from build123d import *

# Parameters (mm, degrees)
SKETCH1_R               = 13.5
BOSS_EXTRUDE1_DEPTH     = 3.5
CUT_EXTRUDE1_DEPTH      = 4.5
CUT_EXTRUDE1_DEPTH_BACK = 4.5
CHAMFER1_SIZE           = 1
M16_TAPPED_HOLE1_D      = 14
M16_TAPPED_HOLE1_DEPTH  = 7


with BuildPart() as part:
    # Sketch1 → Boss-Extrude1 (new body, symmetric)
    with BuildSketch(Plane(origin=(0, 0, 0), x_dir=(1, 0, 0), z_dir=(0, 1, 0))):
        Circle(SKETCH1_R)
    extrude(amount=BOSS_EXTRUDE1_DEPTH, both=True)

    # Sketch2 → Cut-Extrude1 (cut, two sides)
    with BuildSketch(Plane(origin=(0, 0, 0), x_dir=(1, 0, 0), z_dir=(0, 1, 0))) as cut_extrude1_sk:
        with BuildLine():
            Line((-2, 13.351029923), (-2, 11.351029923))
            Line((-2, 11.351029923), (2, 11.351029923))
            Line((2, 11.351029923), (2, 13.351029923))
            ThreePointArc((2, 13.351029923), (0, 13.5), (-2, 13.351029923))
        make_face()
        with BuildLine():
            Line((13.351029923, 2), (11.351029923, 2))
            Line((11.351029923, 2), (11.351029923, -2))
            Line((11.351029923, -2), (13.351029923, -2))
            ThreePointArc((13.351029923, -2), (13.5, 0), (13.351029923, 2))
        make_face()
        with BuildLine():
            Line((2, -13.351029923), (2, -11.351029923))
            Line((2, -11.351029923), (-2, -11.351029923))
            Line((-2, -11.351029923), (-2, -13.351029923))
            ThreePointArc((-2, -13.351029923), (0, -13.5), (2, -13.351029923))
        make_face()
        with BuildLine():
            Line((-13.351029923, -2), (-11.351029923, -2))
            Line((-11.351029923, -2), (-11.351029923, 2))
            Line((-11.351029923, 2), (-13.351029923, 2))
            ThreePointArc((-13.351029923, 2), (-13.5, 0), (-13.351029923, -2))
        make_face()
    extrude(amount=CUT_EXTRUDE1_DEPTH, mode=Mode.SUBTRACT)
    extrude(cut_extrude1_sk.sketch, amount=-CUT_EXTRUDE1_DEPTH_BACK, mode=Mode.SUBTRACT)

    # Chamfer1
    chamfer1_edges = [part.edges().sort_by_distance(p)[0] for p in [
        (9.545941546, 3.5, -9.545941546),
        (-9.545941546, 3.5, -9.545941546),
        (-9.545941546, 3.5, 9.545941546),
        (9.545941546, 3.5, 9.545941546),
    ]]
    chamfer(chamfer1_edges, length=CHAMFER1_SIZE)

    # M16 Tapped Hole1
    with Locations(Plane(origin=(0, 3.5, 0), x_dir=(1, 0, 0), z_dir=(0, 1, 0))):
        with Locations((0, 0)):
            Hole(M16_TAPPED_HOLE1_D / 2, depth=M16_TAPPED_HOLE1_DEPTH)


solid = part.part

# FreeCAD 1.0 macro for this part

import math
import FreeCAD as App
import Part
import Sketcher
from FreeCAD import Vector


def edges_at(feature, points):
    """Names of the edges that pass closest to the given points."""
    edges = feature.Shape.Edges
    near = lambda p: min(range(len(edges)), key=lambda i: edges[i].distToShape(Part.Vertex(*p))[0])
    return sorted({f"Edge{near(p) + 1}" for p in points})

doc = App.newDocument("Part")
body = doc.addObject("PartDesign::Body", "Body")

sketch1 = body.newObject("Sketcher::SketchObject", "Sketch")
sketch1.AttachmentSupport = (doc.getObject("XZ_Plane"), [""])
sketch1.MapMode = "FlatFace"
sketch1.addGeometry(Part.Circle(Vector(0, 0, 0), Vector(0, 0, 1), 13.5), False)
sketch1.addConstraint([
    Sketcher.Constraint("Coincident", 0, 3, -1, 1),
    Sketcher.Constraint("Diameter", 0, 27.0),
])
pad1 = body.newObject("PartDesign::Pad", "Pad")
pad1.Profile = sketch1
pad1.Length = 7
pad1.Midplane = True

sketch2 = body.newObject("Sketcher::SketchObject", "Sketch001")
sketch2.AttachmentSupport = (doc.getObject("XZ_Plane"), [""])
sketch2.MapMode = "FlatFace"
sketch2.addGeometry([
    Part.LineSegment(Vector(-2, -13.35103, 0), Vector(-2, -11.35103, 0)),
    Part.LineSegment(Vector(-2, -11.35103, 0), Vector(2, -11.35103, 0)),
    Part.LineSegment(Vector(2, -11.35103, 0), Vector(2, -13.35103, 0)),
    Part.ArcOfCircle(Part.Circle(Vector(0, 0, 0), Vector(0, 0, 1), 13.5), math.radians(-98.519624), math.radians(-81.480376)),
    Part.LineSegment(Vector(13.35103, -2, 0), Vector(11.35103, -2, 0)),
    Part.LineSegment(Vector(11.35103, -2, 0), Vector(11.35103, 2, 0)),
    Part.LineSegment(Vector(11.35103, 2, 0), Vector(13.35103, 2, 0)),
    Part.ArcOfCircle(Part.Circle(Vector(0, 0, 0), Vector(0, 0, 1), 13.5), math.radians(-8.519624), math.radians(8.519624)),
    Part.LineSegment(Vector(2, 13.35103, 0), Vector(2, 11.35103, 0)),
    Part.LineSegment(Vector(2, 11.35103, 0), Vector(-2, 11.35103, 0)),
    Part.LineSegment(Vector(-2, 11.35103, 0), Vector(-2, 13.35103, 0)),
    Part.ArcOfCircle(Part.Circle(Vector(0, 0, 0), Vector(0, 0, 1), 13.5), math.radians(81.480376), math.radians(98.519624)),
    Part.LineSegment(Vector(-13.35103, 2, 0), Vector(-11.35103, 2, 0)),
    Part.LineSegment(Vector(-11.35103, 2, 0), Vector(-11.35103, -2, 0)),
    Part.LineSegment(Vector(-11.35103, -2, 0), Vector(-13.35103, -2, 0)),
    Part.ArcOfCircle(Part.Circle(Vector(0, 0, 0), Vector(0, 0, 1), 13.5), math.radians(171.480376), math.radians(188.519624)),
], False)
sketch2.addConstraint([
    Sketcher.Constraint("Coincident", 0, 2, 1, 1),
    Sketcher.Constraint("Coincident", 1, 2, 2, 1),
    Sketcher.Constraint("Coincident", 2, 2, 3, 2),
    Sketcher.Constraint("Coincident", 3, 1, 0, 1),
    Sketcher.Constraint("Coincident", 4, 2, 5, 1),
    Sketcher.Constraint("Coincident", 5, 2, 6, 1),
    Sketcher.Constraint("Coincident", 6, 2, 7, 2),
    Sketcher.Constraint("Coincident", 7, 1, 4, 1),
    Sketcher.Constraint("Coincident", 8, 2, 9, 1),
    Sketcher.Constraint("Coincident", 9, 2, 10, 1),
    Sketcher.Constraint("Coincident", 10, 2, 11, 2),
    Sketcher.Constraint("Coincident", 11, 1, 8, 1),
    Sketcher.Constraint("Coincident", 12, 2, 13, 1),
    Sketcher.Constraint("Coincident", 13, 2, 14, 1),
    Sketcher.Constraint("Coincident", 14, 2, 15, 2),
    Sketcher.Constraint("Coincident", 15, 1, 12, 1),
    Sketcher.Constraint("Vertical", 0),
    Sketcher.Constraint("Horizontal", 1),
    Sketcher.Constraint("Vertical", 2),
    Sketcher.Constraint("Horizontal", 4),
    Sketcher.Constraint("Vertical", 5),
    Sketcher.Constraint("Horizontal", 6),
    Sketcher.Constraint("Vertical", 8),
    Sketcher.Constraint("Horizontal", 9),
    Sketcher.Constraint("Vertical", 10),
    Sketcher.Constraint("Horizontal", 12),
    Sketcher.Constraint("Vertical", 13),
    Sketcher.Constraint("Horizontal", 14),
    Sketcher.Constraint("Coincident", 3, 3, -1, 1),
    Sketcher.Constraint("Coincident", 7, 3, -1, 1),
    Sketcher.Constraint("Coincident", 11, 3, -1, 1),
    Sketcher.Constraint("Coincident", 15, 3, -1, 1),
    Sketcher.Constraint("Equal", 3, 7),
    Sketcher.Constraint("Equal", 7, 11),
    Sketcher.Constraint("Equal", 11, 15),
    Sketcher.Constraint("Symmetric", 0, 2, 8, 2, -1, 1),
    Sketcher.Constraint("Symmetric", 4, 2, 12, 2, -1, 1),
    Sketcher.Constraint("Horizontal", 2, 2, 3, 1),
    Sketcher.Constraint("Horizontal", 10, 2, 11, 1),
    Sketcher.Constraint("Horizontal", 6, 2, 12, 2),
    Sketcher.Constraint("Horizontal", 7, 1, 13, 2),
    Sketcher.Constraint("Equal", 14, 0),
    Sketcher.Constraint("Equal", 9, 5),
    Sketcher.Constraint("Radius", 3, 13.5),
    Sketcher.Constraint("DistanceX", 1, 1, 1, 2, 4.0),
    Sketcher.Constraint("DistanceX", 4, 2, 4, 1, 2.0),
])
pocket1 = body.newObject("PartDesign::Pocket", "Pocket")
pocket1.Profile = sketch2
pocket1.Type = "ThroughAll"
pocket1.Midplane = True
doc.recompute()

chamfer = body.newObject("PartDesign::Chamfer", "Chamfer")
chamfer.Base = (pocket1, edges_at(pocket1, [
    (9.546, 3.5, -9.546),
    (-9.546, 3.5, -9.546),
    (-9.546, 3.5, 9.546),
    (9.546, 3.5, 9.546),
]))
chamfer.Size = 1

sketch3 = body.newObject("Sketcher::SketchObject", "Sketch002")
sketch3.AttachmentSupport = (doc.getObject("XZ_Plane"), [""])
sketch3.MapMode = "FlatFace"
sketch3.AttachmentOffset = App.Placement(Vector(0, 0, -3.5), App.Rotation())
sketch3.addGeometry(Part.Circle(Vector(0, 0, 0), Vector(0, 0, 1), 7), False)
sketch3.addConstraint([
    Sketcher.Constraint("Coincident", 0, 3, -1, 1),
    Sketcher.Constraint("Diameter", 0, 14.0),
])
doc.recompute()
hole = body.newObject("PartDesign::Hole", "Hole")
hole.Profile = sketch3
hole.ThreadType = "None"
hole.Diameter = 14
hole.DepthType = "Dimension"
hole.Depth = 7
hole.DrillPoint = "Flat"
hole.Reversed = True

doc.recompute()
